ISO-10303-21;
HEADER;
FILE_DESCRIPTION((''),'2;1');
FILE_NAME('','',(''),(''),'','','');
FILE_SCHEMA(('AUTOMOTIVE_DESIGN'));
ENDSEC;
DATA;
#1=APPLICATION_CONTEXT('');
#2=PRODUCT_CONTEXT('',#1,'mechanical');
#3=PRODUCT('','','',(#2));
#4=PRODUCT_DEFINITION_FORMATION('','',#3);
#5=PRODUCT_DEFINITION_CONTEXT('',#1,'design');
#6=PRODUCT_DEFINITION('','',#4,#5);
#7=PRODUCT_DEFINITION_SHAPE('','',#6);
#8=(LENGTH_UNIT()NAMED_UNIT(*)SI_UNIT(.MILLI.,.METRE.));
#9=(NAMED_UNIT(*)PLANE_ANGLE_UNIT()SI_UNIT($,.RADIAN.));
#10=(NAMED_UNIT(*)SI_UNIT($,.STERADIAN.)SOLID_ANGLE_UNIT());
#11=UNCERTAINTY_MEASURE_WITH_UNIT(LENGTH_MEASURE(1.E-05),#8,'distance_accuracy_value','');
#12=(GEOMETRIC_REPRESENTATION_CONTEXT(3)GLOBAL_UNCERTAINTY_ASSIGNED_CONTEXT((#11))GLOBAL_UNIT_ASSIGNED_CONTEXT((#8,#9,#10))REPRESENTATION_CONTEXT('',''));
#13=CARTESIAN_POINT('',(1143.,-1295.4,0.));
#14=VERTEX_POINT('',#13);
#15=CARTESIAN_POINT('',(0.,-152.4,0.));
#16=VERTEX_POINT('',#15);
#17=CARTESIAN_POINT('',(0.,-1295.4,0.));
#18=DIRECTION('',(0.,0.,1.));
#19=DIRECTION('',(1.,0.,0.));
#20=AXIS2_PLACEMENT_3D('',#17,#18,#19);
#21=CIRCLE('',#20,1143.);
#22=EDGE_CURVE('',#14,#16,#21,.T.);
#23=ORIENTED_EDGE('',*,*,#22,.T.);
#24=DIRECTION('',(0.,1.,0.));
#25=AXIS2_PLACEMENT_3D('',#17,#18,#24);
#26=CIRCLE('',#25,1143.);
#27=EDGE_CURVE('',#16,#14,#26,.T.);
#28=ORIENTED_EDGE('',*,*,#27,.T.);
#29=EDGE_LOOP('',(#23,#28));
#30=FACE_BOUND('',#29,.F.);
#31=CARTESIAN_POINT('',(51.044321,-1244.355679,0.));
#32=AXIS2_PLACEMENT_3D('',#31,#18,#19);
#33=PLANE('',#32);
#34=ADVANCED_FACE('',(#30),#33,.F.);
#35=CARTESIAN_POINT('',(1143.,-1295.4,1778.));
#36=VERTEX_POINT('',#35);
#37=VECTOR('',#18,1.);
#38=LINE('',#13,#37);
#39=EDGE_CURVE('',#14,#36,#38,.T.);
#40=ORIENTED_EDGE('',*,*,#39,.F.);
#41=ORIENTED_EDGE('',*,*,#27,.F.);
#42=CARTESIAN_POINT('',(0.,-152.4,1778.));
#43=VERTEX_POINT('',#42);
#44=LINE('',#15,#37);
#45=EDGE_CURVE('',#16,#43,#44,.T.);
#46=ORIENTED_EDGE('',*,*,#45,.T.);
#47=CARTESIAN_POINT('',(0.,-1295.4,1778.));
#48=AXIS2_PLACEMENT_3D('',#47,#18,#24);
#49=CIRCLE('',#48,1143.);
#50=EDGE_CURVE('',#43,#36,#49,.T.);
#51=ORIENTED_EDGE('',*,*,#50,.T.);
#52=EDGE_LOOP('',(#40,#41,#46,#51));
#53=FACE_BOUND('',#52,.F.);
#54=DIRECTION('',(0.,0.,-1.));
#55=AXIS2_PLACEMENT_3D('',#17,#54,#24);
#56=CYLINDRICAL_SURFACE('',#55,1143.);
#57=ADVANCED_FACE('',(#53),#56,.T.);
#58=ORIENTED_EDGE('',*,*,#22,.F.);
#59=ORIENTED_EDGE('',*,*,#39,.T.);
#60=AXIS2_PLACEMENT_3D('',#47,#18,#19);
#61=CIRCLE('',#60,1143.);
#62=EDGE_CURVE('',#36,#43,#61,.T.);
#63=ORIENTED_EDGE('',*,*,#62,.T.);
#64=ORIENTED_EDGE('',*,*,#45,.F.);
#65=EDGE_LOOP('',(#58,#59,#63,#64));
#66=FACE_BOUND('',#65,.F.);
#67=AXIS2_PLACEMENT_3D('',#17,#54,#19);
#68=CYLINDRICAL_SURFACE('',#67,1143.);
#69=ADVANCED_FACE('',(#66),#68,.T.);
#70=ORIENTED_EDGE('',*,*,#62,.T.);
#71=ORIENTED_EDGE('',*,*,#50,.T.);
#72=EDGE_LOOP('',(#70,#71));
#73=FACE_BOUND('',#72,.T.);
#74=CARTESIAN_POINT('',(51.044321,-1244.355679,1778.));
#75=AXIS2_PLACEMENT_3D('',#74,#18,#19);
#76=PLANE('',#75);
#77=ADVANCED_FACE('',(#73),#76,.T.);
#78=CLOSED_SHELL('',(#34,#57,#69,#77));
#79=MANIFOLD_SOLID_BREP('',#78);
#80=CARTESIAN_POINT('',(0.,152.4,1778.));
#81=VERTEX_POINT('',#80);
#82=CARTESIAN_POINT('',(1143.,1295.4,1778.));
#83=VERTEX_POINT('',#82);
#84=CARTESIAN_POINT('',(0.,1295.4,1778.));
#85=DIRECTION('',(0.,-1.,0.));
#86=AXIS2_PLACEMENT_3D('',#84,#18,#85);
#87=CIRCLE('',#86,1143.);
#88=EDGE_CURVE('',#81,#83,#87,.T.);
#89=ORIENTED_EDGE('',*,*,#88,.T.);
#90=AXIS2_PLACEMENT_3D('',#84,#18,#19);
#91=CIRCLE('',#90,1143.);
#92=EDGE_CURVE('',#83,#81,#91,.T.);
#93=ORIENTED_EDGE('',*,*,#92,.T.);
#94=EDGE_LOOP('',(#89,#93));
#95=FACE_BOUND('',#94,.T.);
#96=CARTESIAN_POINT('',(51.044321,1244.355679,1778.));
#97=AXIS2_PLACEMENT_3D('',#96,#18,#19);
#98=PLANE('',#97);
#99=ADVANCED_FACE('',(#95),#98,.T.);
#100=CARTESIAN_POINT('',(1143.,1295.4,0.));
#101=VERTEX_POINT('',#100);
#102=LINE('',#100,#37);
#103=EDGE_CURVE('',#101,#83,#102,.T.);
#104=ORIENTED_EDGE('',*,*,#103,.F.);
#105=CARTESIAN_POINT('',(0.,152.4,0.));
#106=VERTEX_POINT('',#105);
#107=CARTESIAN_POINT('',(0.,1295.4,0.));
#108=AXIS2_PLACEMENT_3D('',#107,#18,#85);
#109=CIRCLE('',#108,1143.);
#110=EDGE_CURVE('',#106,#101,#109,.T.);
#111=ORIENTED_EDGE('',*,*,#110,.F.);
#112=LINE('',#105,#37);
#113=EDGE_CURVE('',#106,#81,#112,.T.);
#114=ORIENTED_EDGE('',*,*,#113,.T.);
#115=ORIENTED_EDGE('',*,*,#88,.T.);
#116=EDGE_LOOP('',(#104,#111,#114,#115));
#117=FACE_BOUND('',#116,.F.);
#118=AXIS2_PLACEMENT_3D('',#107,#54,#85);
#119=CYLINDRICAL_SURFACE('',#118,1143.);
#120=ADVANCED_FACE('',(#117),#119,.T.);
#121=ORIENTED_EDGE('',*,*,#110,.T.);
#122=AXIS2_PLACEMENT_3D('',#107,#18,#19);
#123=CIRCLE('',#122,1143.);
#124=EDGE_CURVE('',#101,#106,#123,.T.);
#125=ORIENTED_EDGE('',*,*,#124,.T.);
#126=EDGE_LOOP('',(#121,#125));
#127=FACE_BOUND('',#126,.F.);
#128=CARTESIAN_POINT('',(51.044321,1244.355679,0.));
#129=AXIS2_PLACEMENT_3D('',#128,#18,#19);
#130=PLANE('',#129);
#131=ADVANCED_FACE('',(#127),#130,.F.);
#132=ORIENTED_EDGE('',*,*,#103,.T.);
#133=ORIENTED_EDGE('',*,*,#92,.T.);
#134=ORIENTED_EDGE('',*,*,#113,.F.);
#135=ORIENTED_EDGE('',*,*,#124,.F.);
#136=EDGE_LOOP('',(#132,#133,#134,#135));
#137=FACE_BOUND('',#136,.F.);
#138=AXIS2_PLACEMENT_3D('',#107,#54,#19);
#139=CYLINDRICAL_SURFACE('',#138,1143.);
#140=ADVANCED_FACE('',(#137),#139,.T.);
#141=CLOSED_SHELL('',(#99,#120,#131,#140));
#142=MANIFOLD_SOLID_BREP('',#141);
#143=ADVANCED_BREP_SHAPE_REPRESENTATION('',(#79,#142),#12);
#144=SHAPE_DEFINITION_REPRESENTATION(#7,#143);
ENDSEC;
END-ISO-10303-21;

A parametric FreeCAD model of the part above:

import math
import FreeCAD as App
import Part
import Sketcher

V = App.Vector
Q = App.Units.Quantity

doc = App.newDocument("Part")
body = doc.addObject("PartDesign::Body", "Body")
body.AllowCompound = True

sketch1 = body.newObject("Sketcher::SketchObject", "Sketch")
sketch1.AttachmentSupport = (doc.getObject("XY_Plane"), [""])
sketch1.MapMode = "FlatFace"
sketch1.addGeometry([
    Part.ArcOfCircle(Part.Circle(V(0, 1295.4, 0), V(0, 0, 1), 1143), math.radians(0), math.radians(270)),
    Part.ArcOfCircle(Part.Circle(V(0, 1295.4, 0), V(0, 0, 1), 1143), math.radians(-90), math.radians(0)),
    Part.ArcOfCircle(Part.Circle(V(0, -1295.4, 0), V(0, 0, 1), 1143), math.radians(0), math.radians(90)),
    Part.ArcOfCircle(Part.Circle(V(0, -1295.4, 0), V(0, 0, 1), 1143), math.radians(90), math.radians(360)),
], False)
sketch1.addConstraint([
    Sketcher.Constraint("Coincident", 0, 1, 1, 2),
    Sketcher.Constraint("Coincident", 1, 1, 0, 2),
    Sketcher.Constraint("Coincident", 2, 1, 3, 2),
    Sketcher.Constraint("Coincident", 3, 1, 2, 2),
    Sketcher.Constraint("Equal", 0, 1),
    Sketcher.Constraint("Equal", 1, 2),
    Sketcher.Constraint("Equal", 2, 3),
    Sketcher.Constraint("Symmetric", 0, 3, 2, 3, -1, 1),
    Sketcher.Constraint("Symmetric", 0, 1, 2, 1, -1),
    Sketcher.Constraint("PointOnObject", 1, 1, -2),
    Sketcher.Constraint("PointOnObject", 3, 1, -2),
    Sketcher.Constraint("Horizontal", 1, 3, 0, 1),
    Sketcher.Constraint("Radius", 0, Q("45 in")),
    Sketcher.Constraint("DistanceY", -1, 1, 0, 3, Q("51 in")),
])
pad1 = body.newObject("PartDesign::Pad", "Pad")
pad1.Profile = sketch1
pad1.Length = Q("70 in")

doc.recompute()
